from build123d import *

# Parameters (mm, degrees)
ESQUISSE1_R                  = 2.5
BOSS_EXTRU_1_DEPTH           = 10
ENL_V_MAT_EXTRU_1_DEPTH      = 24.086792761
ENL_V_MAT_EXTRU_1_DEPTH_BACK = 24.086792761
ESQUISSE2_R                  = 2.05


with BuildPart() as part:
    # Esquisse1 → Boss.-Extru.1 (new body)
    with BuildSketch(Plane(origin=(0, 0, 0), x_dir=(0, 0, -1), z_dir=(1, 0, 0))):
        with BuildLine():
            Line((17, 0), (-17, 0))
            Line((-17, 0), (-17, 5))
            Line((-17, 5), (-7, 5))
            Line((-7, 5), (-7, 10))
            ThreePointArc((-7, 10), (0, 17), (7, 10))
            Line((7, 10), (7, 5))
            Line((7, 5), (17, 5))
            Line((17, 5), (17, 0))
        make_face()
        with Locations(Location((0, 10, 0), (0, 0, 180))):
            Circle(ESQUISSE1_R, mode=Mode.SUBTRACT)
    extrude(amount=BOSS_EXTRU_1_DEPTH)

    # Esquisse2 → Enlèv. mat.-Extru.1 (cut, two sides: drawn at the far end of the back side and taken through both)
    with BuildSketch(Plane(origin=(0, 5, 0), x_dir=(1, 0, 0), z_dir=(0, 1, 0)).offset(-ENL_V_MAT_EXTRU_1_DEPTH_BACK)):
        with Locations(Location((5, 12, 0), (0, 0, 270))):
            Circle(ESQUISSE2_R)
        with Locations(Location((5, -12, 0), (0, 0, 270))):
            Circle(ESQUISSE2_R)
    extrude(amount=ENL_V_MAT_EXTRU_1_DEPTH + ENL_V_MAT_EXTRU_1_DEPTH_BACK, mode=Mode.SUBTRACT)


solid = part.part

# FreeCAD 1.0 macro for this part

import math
import FreeCAD as App
import Part
import Sketcher
Q = App.Units.Quantity

doc = App.newDocument("Part")
body = doc.addObject("PartDesign::Body", "Body")

sketch1 = doc.addObject("Sketcher::SketchObject", "Sketch")
body.addObject(sketch1)
sketch1.AttachmentSupport = (doc.YZ_Plane, [""])
sketch1.MapMode = "FlatFace"
sketch1.addGeometry([
    Part.LineSegment(App.Vector(0, 17, 0), App.Vector(0, -17, 0)),
    Part.LineSegment(App.Vector(0, -17, 0), App.Vector(5, -17, 0)),
    Part.LineSegment(App.Vector(5, -17, 0), App.Vector(5, -7, 0)),
    Part.LineSegment(App.Vector(5, -7, 0), App.Vector(10, -7, 0)),
    Part.ArcOfCircle(Part.Circle(App.Vector(10, 0, 0), App.Vector(0, 0, 1), 7), math.radians(-90), math.radians(90)),
    Part.LineSegment(App.Vector(10, 7, 0), App.Vector(5, 7, 0)),
    Part.LineSegment(App.Vector(5, 7, 0), App.Vector(5, 17, 0)),
    Part.LineSegment(App.Vector(5, 17, 0), App.Vector(0, 17, 0)),
    Part.Circle(App.Vector(10, 0, 0), App.Vector(0, 0, 1), 2.5),
], False)
sketch1.addConstraint([
    Sketcher.Constraint("Coincident", 0, 2, 1, 1),
    Sketcher.Constraint("Coincident", 1, 2, 2, 1),
    Sketcher.Constraint("Coincident", 2, 2, 3, 1),
    Sketcher.Constraint("Tangent", 3, 2, 4, 1),
    Sketcher.Constraint("Tangent", 4, 2, 5, 1),
    Sketcher.Constraint("Coincident", 5, 2, 6, 1),
    Sketcher.Constraint("Coincident", 6, 2, 7, 1),
    Sketcher.Constraint("Coincident", 7, 2, 0, 1),
    Sketcher.Constraint("Vertical", 0),
    Sketcher.Constraint("Horizontal", 1),
    Sketcher.Constraint("Vertical", 2),
    Sketcher.Constraint("Horizontal", 3),
    Sketcher.Constraint("Horizontal", 5),
    Sketcher.Constraint("Vertical", 6),
    Sketcher.Constraint("Horizontal", 7),
    Sketcher.Constraint("Coincident", 8, 3, 4, 3),
    Sketcher.Constraint("Symmetric", 0, 2, 7, 2, -1, 1),
    Sketcher.Constraint("Symmetric", 2, 2, 5, 2, -1),
    Sketcher.Constraint("Equal", 1, 3),
    Sketcher.Constraint("Diameter", 8, Q("5 mm")),
    Sketcher.Constraint("Radius", 4, Q("7 mm")),
    Sketcher.Constraint("DistanceX", 1, 1, 1, 2, Q("5 mm")),
    Sketcher.Constraint("DistanceY", 0, 2, 0, 1, Q("34 mm")),
])
pad1 = doc.addObject("PartDesign::Pad", "Pad")
body.addObject(pad1)
pad1.Profile = sketch1
pad1.Length = 10

sketch2 = doc.addObject("Sketcher::SketchObject", "Sketch001")
body.addObject(sketch2)
sketch2.AttachmentSupport = (doc.XZ_Plane, [""])
sketch2.MapMode = "FlatFace"
sketch2.AttachmentOffset = App.Placement(App.Vector(0, 0, -5), App.Rotation())
sketch2.addGeometry([
    Part.Circle(App.Vector(5, -12, 0), App.Vector(0, 0, 1), 2),
    Part.Circle(App.Vector(5, 12, 0), App.Vector(0, 0, 1), 2),
], False)
sketch2.addConstraint([
    Sketcher.Constraint("Equal", 0, 1),
    Sketcher.Constraint("Symmetric", 0, 3, 1, 3, -1),
    Sketcher.Constraint("Diameter", 0, Q("4.1 mm")),
    Sketcher.Constraint("DistanceX", -1, 1, 0, 3, Q("5 mm")),
    Sketcher.Constraint("DistanceY", 0, 3, -1, 1, Q("12 mm")),
])
pocket1 = doc.addObject("PartDesign::Pocket", "Pocket")
body.addObject(pocket1)
pocket1.Profile = sketch2
pocket1.Type = "ThroughAll"
pocket1.Midplane = True

doc.recompute()
